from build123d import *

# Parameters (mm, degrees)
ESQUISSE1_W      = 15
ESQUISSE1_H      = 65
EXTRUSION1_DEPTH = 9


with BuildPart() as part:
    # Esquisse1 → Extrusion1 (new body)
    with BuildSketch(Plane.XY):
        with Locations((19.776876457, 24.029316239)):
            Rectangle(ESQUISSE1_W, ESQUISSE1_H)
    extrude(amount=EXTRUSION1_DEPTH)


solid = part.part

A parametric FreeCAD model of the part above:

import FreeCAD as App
import Part
import Sketcher

V = App.Vector


def add_polygon(sketch, points):
    """Adds a closed chain of lines whose ends are joined by coincident constraints."""
    first, n = sketch.GeometryCount, len(points)
    for a, b in zip(points, points[1:] + points[:1]):
        sketch.addGeometry(Part.LineSegment(App.Vector(*a, 0), App.Vector(*b, 0)), False)
    for i in range(n):
        sketch.addConstraint(Sketcher.Constraint("Coincident", first + i, 2, first + (i + 1) % n, 1))

doc = App.newDocument("Part")
params = doc.addObject("Spreadsheet::Sheet", "Params")
for row, (alias, value) in enumerate([
    ("sketch1_width", "15 mm"),
    ("sketch1_height", "65 mm"),
    ("pad1_length", "9 mm"),
], start=1):
    params.set(f"A{row}", alias)
    params.set(f"B{row}", "=" + value)
    params.setAlias(f"B{row}", alias)

body = doc.addObject("PartDesign::Body", "Body")

sketch1 = doc.addObject("Sketcher::SketchObject", "Sketch")
body.addObject(sketch1)
sketch1.AttachmentSupport = (doc.XY_Plane, [""])
sketch1.MapMode = "FlatFace"
add_polygon(sketch1, [(12, 57), (12, -8), (27, -8), (27, 57)])
sketch1.addConstraint([
    Sketcher.Constraint("Vertical", 0),
    Sketcher.Constraint("Horizontal", 1),
    Sketcher.Constraint("Vertical", 2),
    Sketcher.Constraint("Horizontal", 3),
    Sketcher.Constraint("DistanceX", 1, 1, 1, 2, 15.0),
    Sketcher.Constraint("DistanceY", 0, 2, 0, 1, 65.0),
    Sketcher.Constraint("DistanceX", -1, 1, 0, 2, 12.276876),
    Sketcher.Constraint("DistanceY", 0, 2, -1, 1, 8.470684),
])
sketch1.setExpression("Constraints[8]", "Params.sketch1_width")
sketch1.setExpression("Constraints[9]", "Params.sketch1_height")
pad1 = doc.addObject("PartDesign::Pad", "Pad")
body.addObject(pad1)
pad1.Profile = sketch1
pad1.setExpression("Length", "Params.pad1_length")

doc.recompute()
